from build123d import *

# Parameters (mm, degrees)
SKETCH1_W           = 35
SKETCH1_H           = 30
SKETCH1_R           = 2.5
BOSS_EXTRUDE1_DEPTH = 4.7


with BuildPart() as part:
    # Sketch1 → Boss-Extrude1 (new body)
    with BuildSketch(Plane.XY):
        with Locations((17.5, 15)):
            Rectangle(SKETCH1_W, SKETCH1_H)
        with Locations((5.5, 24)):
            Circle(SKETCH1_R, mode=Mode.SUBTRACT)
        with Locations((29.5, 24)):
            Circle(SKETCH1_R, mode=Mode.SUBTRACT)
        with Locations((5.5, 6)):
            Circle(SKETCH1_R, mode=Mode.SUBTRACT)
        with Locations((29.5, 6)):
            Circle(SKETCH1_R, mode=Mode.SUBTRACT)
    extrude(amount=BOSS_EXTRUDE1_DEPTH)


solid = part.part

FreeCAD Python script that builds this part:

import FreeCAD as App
import Part
import Sketcher


def add_polygon(sketch, points):
    """Adds a closed chain of lines whose ends are joined by coincident constraints."""
    first, n = sketch.GeometryCount, len(points)
    for a, b in zip(points, points[1:] + points[:1]):
        sketch.addGeometry(Part.LineSegment(App.Vector(*a, 0), App.Vector(*b, 0)), False)
    for i in range(n):
        sketch.addConstraint(Sketcher.Constraint("Coincident", first + i, 2, first + (i + 1) % n, 1))

doc = App.newDocument("Part")
params = doc.addObject("Spreadsheet::Sheet", "Params")
for row, (alias, value) in enumerate([
    ("sketch1_diameter", "5 mm"),
    ("sketch1_width", "35 mm"),
    ("sketch1_height", "30 mm"),
    ("pad1_length", "4.7 mm"),
], start=1):
    params.set(f"A{row}", alias)
    params.set(f"B{row}", "=" + value)
    params.setAlias(f"B{row}", alias)

body = doc.addObject("PartDesign::Body", "Body")

# Sketch on XY plane
sketch1 = doc.addObject("Sketcher::SketchObject", "Sketch")
body.addObject(sketch1)
sketch1.AttachmentSupport = (doc.XY_Plane, [""])
sketch1.MapMode = "FlatFace"
add_polygon(sketch1, [(0, 30), (0, 0), (35, 0), (35, 30)])  # lines 0-3
sketch1.addGeometry(Part.Circle(App.Vector(5.5, 6, 0), App.Vector(0, 0, 1), 2.5), False)  # 4
sketch1.addGeometry(Part.Circle(App.Vector(29.5, 6, 0), App.Vector(0, 0, 1), 2.5), False)  # 5
sketch1.addGeometry(Part.Circle(App.Vector(5.5, 24, 0), App.Vector(0, 0, 1), 2.5), False)  # 6
sketch1.addGeometry(Part.Circle(App.Vector(29.5, 24, 0), App.Vector(0, 0, 1), 2.5), False)  # 7
sketch1.addConstraint(Sketcher.Constraint("Vertical", 0))
sketch1.addConstraint(Sketcher.Constraint("Horizontal", 1))
sketch1.addConstraint(Sketcher.Constraint("Vertical", 2))
sketch1.addConstraint(Sketcher.Constraint("Horizontal", 3))
sketch1.addConstraint(Sketcher.Constraint("Coincident", 0, 2, -1, 1))
sketch1.addConstraint(Sketcher.Constraint("Equal", 4, 5))
sketch1.addConstraint(Sketcher.Constraint("Equal", 5, 6))
sketch1.addConstraint(Sketcher.Constraint("Equal", 6, 7))
sketch1.addConstraint(Sketcher.Constraint("Horizontal", 4, 3, 5, 3))
sketch1.addConstraint(Sketcher.Constraint("Horizontal", 6, 3, 7, 3))
sketch1.addConstraint(Sketcher.Constraint("Vertical", 4, 3, 6, 3))
sketch1.addConstraint(Sketcher.Constraint("Vertical", 5, 3, 7, 3))
sketch1.addConstraint(Sketcher.Constraint("Diameter", 4, 5.0))
sketch1.addConstraint(Sketcher.Constraint("DistanceX", 1, 1, 1, 2, 35.0))
sketch1.addConstraint(Sketcher.Constraint("DistanceY", 0, 2, 0, 1, 30.0))
sketch1.addConstraint(Sketcher.Constraint("DistanceY", -1, 1, 4, 3, 6.0))
sketch1.addConstraint(Sketcher.Constraint("DistanceY", -1, 1, 6, 3, 24.0))
sketch1.addConstraint(Sketcher.Constraint("DistanceX", 4, 3, 5, 3, 24.0))
sketch1.addConstraint(Sketcher.Constraint("DistanceX", -1, 1, 4, 3, 5.5))
sketch1.setExpression("Constraints[16]", "Params.sketch1_diameter")
sketch1.setExpression("Constraints[17]", "Params.sketch1_width")
sketch1.setExpression("Constraints[18]", "Params.sketch1_height")
pad1 = doc.addObject("PartDesign::Pad", "Pad")
body.addObject(pad1)
pad1.Profile = sketch1
pad1.setExpression("Length", "Params.pad1_length")

doc.recompute()
